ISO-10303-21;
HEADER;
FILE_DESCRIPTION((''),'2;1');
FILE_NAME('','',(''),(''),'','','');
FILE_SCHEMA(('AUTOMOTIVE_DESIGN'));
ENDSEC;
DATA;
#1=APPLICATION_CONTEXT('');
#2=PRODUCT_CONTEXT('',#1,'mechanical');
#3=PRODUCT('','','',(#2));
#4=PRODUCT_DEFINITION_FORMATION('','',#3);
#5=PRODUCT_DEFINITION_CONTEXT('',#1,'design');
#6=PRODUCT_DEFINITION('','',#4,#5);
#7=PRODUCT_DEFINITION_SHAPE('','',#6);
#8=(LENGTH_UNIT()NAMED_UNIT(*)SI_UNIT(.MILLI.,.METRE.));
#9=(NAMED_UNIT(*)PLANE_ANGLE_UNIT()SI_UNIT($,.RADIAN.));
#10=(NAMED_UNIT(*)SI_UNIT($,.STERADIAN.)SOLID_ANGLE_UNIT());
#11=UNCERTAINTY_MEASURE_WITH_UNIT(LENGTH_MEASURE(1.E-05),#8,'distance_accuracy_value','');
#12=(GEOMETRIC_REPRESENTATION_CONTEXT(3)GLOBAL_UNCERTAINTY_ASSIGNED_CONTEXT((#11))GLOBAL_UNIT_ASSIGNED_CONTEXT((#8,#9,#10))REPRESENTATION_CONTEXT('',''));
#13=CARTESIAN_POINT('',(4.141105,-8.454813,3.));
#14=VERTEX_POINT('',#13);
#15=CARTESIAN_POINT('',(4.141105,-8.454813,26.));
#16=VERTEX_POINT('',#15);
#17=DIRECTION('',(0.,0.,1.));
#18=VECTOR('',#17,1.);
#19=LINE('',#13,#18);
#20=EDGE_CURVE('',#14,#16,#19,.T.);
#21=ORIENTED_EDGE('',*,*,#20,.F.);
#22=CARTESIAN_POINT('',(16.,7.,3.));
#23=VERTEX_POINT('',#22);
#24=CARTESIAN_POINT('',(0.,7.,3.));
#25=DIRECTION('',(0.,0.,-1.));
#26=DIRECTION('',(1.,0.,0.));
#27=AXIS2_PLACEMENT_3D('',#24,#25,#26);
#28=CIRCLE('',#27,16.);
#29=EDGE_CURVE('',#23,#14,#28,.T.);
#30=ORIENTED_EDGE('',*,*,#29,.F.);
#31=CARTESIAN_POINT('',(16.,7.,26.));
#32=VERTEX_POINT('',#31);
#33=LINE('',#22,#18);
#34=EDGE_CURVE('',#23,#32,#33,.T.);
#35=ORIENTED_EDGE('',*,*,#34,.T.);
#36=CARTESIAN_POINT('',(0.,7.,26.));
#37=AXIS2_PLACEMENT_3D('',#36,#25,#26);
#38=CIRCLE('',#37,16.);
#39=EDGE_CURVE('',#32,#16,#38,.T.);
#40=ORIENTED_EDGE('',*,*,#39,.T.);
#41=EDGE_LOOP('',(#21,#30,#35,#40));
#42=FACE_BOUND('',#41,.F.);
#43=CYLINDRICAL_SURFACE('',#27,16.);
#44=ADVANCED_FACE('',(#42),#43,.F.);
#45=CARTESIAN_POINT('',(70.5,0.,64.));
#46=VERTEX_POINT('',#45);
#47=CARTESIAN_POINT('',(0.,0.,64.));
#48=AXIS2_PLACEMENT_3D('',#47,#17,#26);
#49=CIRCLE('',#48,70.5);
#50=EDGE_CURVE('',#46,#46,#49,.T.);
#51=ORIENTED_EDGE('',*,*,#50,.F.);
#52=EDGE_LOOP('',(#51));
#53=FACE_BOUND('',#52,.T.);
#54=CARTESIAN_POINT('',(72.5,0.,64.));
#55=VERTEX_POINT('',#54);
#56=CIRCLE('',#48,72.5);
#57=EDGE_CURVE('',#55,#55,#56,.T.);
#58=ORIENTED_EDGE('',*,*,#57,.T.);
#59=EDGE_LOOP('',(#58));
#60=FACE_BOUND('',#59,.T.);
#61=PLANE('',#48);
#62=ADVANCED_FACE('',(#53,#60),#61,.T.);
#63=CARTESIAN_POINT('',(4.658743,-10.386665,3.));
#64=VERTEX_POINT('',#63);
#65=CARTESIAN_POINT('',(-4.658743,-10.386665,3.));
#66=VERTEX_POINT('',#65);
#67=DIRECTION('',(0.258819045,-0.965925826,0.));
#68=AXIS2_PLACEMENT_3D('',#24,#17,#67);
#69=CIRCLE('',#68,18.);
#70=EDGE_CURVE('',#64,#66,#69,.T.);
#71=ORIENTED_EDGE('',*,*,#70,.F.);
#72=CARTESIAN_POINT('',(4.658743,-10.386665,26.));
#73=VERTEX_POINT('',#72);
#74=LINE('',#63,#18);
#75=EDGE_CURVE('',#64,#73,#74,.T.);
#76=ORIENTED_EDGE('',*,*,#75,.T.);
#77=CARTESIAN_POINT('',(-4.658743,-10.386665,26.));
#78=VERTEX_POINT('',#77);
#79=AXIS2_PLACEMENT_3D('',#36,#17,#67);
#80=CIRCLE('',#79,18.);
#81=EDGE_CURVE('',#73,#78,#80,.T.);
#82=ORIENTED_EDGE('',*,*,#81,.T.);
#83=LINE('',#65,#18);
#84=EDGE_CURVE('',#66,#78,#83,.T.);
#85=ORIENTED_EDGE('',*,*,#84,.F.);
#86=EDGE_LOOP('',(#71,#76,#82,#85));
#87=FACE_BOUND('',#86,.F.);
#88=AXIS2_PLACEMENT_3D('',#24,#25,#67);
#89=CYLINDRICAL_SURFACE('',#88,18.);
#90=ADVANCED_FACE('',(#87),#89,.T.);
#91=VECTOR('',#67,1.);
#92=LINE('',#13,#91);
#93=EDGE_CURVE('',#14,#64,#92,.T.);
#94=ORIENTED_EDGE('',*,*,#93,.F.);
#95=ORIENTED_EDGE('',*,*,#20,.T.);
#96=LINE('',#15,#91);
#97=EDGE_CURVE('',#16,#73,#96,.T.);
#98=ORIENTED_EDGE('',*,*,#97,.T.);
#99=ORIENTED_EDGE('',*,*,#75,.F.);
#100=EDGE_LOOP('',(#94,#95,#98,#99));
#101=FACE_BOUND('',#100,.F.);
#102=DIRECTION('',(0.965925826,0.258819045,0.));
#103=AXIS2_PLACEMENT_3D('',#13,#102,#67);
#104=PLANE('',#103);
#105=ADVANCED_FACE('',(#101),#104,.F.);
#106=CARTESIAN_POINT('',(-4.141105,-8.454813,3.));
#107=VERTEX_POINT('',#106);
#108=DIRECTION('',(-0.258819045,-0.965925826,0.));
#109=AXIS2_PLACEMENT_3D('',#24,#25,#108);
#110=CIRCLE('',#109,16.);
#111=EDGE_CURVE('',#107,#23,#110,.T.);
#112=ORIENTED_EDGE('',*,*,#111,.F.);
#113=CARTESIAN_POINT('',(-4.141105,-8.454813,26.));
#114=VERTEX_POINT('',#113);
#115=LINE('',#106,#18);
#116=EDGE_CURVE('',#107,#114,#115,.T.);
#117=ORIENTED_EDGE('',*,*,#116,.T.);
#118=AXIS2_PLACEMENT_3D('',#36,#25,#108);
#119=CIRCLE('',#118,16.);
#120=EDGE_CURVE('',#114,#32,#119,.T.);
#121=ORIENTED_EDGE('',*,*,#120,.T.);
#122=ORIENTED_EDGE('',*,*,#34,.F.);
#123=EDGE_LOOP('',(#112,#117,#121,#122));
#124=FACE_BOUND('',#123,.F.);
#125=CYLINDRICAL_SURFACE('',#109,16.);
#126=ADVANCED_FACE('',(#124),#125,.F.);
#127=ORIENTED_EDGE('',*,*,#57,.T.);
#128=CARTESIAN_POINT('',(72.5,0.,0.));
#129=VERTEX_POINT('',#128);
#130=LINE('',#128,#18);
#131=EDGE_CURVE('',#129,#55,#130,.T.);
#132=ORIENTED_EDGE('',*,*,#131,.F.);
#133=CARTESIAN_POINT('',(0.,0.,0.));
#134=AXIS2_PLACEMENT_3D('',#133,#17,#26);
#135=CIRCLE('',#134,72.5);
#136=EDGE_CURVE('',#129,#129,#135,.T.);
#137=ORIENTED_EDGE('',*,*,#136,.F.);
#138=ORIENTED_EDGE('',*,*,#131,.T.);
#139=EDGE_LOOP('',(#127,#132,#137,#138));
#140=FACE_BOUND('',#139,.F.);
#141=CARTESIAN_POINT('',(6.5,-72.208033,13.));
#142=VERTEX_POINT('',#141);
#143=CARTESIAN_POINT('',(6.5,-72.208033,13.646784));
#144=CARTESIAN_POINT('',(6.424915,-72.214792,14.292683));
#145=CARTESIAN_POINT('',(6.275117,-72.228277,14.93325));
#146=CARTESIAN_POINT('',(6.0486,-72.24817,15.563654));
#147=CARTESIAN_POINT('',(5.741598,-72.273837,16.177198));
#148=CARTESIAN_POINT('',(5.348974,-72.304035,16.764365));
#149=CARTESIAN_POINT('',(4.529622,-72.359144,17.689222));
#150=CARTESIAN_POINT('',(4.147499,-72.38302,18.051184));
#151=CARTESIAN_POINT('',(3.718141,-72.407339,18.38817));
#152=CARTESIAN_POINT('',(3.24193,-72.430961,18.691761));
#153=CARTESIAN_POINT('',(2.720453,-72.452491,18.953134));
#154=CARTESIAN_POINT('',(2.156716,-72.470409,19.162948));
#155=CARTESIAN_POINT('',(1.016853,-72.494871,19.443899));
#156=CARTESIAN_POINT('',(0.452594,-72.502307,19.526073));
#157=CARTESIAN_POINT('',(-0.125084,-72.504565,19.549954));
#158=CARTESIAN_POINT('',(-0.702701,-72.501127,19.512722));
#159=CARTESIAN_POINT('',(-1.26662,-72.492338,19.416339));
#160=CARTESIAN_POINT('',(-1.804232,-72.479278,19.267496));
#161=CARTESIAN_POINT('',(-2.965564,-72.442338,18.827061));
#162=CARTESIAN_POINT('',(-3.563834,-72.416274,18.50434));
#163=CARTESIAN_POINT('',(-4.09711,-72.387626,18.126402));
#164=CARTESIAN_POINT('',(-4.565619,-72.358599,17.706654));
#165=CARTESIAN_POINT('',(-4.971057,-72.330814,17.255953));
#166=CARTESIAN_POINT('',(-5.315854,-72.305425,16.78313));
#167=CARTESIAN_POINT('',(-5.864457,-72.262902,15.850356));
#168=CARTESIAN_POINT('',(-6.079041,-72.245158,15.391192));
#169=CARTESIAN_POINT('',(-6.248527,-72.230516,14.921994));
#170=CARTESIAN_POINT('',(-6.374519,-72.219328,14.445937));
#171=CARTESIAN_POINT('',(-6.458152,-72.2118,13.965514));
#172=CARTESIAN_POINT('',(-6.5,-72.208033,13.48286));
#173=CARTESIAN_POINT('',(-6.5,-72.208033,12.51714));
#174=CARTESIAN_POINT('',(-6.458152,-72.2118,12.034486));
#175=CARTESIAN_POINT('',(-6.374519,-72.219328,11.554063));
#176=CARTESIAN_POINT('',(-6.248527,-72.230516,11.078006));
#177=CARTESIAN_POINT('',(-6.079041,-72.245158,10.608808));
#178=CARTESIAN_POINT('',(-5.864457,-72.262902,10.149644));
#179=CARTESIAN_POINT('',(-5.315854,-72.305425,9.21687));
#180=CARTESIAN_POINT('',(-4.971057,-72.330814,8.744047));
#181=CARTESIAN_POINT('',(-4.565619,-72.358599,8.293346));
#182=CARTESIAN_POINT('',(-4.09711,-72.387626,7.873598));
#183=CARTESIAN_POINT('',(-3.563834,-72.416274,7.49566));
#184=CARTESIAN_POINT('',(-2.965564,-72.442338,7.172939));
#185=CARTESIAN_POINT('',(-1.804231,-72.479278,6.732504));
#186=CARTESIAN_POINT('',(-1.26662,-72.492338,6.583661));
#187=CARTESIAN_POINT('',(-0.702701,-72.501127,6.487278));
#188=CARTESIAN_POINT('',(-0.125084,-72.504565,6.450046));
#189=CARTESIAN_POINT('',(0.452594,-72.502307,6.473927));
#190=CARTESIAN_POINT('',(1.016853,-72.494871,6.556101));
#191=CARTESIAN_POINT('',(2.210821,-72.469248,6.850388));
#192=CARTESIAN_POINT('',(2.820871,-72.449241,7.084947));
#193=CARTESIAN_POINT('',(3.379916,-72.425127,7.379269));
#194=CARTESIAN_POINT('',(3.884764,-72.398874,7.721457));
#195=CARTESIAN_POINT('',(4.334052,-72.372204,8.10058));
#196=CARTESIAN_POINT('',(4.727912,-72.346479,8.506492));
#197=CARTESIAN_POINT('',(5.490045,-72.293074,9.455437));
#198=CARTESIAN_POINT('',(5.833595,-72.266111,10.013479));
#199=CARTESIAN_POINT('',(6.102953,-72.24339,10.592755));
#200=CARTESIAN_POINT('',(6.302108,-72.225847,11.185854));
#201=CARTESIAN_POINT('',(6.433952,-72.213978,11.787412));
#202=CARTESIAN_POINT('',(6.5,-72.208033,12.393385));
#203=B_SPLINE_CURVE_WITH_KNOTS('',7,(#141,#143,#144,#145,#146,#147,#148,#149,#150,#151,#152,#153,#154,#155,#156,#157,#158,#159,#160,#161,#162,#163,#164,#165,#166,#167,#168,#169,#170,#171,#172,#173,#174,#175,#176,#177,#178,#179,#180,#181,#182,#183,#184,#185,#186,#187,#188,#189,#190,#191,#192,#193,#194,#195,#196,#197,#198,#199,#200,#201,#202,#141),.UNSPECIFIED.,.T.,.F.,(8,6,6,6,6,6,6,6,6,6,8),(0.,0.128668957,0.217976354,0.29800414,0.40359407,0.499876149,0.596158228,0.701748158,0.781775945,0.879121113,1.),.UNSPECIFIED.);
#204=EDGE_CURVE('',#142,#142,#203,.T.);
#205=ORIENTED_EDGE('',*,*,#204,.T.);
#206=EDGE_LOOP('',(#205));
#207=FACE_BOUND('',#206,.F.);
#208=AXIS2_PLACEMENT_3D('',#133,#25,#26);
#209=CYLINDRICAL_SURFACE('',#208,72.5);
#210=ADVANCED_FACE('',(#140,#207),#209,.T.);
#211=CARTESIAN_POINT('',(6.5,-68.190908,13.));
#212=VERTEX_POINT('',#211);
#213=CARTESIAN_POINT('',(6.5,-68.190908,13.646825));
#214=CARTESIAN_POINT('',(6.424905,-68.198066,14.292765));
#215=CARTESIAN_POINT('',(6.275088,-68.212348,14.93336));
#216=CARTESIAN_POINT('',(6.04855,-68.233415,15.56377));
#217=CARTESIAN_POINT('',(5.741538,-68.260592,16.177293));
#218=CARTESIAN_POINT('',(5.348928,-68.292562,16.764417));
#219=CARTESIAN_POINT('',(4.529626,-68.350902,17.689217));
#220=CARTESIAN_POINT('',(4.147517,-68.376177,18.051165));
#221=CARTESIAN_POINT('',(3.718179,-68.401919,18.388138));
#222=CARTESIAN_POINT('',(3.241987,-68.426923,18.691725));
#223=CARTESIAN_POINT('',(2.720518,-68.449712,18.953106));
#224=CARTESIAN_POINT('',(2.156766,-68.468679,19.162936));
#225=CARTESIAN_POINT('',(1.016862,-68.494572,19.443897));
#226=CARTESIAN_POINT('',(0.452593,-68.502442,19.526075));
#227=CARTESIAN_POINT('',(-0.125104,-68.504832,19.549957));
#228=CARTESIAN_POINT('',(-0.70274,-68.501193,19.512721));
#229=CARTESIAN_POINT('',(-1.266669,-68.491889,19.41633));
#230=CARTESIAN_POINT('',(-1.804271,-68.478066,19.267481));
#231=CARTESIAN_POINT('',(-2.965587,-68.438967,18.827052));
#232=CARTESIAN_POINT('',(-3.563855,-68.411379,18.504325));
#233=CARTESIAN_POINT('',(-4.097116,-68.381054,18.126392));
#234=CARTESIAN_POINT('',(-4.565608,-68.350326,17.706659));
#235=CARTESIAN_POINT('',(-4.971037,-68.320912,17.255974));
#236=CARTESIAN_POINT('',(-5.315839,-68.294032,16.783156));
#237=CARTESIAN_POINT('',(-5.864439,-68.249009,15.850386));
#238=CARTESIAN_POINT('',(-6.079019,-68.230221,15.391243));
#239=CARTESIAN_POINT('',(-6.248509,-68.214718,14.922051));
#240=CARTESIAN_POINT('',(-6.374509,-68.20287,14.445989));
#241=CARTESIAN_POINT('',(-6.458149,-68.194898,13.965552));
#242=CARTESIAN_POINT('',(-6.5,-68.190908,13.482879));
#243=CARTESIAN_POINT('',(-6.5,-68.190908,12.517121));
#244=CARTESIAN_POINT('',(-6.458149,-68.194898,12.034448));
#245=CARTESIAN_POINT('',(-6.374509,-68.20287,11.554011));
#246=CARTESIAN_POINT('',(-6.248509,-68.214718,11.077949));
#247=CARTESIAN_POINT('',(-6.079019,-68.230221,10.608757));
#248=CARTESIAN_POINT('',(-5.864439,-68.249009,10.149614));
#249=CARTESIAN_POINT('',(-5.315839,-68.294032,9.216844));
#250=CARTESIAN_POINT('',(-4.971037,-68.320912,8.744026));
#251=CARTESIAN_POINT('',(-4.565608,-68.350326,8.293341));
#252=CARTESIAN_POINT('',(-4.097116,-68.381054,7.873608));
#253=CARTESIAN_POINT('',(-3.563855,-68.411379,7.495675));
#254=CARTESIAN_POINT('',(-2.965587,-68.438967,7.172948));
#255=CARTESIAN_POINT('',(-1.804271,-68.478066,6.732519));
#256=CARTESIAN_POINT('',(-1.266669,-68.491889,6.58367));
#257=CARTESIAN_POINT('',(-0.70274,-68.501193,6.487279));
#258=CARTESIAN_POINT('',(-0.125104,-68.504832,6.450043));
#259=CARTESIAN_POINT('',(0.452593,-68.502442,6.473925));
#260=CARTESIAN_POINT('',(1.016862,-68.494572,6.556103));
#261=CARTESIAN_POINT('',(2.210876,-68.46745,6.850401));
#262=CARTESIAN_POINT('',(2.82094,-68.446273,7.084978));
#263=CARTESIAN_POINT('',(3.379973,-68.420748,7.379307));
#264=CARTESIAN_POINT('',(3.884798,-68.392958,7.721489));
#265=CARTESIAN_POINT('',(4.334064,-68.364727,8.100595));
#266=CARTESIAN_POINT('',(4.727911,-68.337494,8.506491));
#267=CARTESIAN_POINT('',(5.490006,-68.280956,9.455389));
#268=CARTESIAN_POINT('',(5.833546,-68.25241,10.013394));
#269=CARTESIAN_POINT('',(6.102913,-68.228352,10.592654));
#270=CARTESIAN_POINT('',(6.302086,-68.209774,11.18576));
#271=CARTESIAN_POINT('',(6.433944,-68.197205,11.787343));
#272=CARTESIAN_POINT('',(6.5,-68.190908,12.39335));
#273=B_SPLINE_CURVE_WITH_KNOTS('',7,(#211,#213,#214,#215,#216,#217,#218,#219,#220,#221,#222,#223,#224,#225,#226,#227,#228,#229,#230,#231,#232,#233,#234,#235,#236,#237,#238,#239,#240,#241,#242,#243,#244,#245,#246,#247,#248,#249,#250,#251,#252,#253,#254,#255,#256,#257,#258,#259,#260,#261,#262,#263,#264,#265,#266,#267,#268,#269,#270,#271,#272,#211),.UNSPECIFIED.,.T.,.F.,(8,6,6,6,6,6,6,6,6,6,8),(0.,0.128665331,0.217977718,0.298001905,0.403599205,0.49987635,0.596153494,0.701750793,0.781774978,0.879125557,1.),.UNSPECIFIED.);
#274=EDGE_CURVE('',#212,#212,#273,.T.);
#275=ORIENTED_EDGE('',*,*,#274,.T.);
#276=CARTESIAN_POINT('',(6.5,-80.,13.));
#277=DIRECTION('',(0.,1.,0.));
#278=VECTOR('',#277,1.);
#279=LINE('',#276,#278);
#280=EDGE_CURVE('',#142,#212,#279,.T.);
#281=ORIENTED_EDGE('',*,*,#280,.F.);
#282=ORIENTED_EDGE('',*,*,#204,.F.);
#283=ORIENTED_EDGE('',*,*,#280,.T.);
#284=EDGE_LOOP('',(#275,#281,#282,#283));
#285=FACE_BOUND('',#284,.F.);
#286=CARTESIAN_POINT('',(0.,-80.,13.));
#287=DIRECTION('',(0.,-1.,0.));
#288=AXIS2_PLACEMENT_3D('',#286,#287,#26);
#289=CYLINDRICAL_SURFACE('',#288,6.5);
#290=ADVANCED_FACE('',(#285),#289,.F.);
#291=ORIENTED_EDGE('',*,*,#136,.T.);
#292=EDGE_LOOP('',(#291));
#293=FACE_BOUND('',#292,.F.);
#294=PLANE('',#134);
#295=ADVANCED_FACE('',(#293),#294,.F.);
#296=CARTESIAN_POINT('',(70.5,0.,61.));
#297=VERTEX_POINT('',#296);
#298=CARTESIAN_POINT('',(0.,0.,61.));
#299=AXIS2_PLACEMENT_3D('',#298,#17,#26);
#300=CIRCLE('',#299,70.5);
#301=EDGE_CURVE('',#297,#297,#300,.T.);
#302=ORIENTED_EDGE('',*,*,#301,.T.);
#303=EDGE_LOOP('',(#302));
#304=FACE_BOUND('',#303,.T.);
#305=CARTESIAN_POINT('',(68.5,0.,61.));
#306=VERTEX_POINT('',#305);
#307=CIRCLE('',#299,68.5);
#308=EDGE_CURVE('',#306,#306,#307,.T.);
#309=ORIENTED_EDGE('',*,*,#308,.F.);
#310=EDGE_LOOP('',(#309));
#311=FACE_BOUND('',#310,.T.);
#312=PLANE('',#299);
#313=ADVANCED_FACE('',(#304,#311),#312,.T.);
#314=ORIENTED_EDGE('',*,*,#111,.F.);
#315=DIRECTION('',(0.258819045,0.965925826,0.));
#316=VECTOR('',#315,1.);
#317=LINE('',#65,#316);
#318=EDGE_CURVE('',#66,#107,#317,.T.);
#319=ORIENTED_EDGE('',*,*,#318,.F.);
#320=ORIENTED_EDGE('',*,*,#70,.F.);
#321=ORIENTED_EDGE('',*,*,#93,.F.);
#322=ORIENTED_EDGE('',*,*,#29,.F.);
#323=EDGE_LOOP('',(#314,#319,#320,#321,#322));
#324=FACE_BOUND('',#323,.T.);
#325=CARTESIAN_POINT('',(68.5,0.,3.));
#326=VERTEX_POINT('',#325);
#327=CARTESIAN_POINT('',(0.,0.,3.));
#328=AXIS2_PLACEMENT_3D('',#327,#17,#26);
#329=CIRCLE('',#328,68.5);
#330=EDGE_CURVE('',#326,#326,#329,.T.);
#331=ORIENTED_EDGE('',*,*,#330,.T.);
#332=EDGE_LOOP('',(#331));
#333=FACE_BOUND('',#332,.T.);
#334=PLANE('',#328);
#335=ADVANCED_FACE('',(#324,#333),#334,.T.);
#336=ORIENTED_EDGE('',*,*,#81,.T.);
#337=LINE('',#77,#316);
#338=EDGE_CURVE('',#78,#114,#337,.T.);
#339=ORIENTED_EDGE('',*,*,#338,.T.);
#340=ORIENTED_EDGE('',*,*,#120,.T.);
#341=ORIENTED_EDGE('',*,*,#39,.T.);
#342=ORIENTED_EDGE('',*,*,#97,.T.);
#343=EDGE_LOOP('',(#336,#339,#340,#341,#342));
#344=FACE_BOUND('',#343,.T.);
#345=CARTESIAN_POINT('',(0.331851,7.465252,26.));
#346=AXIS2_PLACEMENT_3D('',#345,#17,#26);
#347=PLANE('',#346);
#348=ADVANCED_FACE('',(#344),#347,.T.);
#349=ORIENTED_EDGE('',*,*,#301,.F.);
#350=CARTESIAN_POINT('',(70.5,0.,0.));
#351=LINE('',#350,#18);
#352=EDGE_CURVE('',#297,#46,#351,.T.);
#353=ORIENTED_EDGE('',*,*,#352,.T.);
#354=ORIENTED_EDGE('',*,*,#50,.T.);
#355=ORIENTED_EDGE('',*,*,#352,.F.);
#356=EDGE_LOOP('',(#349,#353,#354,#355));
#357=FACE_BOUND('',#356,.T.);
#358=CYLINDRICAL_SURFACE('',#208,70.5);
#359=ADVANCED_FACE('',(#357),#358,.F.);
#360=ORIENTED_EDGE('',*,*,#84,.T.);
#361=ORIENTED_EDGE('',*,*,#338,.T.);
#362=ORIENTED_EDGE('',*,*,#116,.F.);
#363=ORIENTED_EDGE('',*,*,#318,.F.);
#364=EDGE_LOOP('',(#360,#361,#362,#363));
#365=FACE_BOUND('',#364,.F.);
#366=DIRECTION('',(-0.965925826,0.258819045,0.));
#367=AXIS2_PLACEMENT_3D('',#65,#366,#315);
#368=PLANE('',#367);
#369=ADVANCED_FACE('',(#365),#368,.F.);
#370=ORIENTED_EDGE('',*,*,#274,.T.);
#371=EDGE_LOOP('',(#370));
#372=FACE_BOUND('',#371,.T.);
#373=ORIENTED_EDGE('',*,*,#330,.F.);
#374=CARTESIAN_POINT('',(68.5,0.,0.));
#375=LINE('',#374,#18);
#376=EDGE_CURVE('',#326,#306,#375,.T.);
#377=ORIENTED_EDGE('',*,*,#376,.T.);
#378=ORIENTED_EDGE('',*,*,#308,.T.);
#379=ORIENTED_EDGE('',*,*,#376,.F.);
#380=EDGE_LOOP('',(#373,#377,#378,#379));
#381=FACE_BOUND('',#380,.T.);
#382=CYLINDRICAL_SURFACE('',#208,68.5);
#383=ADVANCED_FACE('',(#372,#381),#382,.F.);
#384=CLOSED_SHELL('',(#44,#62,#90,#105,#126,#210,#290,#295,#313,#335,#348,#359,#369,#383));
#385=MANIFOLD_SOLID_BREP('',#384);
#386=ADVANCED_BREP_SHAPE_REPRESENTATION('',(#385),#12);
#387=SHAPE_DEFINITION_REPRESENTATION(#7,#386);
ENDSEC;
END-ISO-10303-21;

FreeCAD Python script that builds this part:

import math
import FreeCAD as App
import Part
import Sketcher
Q = App.Units.Quantity

doc = App.newDocument("Part")
body = doc.addObject("PartDesign::Body", "Body")

# Sketch on XY plane
sketch1 = doc.addObject("Sketcher::SketchObject", "Sketch")
body.addObject(sketch1)
sketch1.AttachmentSupport = (doc.XY_Plane, [""])
sketch1.MapMode = "FlatFace"
sketch1.addGeometry([
    Part.Circle(App.Vector(0, 0, 0), App.Vector(0, 0, 1), 72),
    Part.Circle(App.Vector(0, 0, 0), App.Vector(0, 0, 1), 70),
], False)
sketch1.addConstraint([
    Sketcher.Constraint("Coincident", 0, 3, -1, 1),
    Sketcher.Constraint("Coincident", 1, 3, -1, 1),
    Sketcher.Constraint("Diameter", 0, 145.0),
    Sketcher.Constraint("Diameter", 1, 141.0),
])
pad1 = doc.addObject("PartDesign::Pad", "Pad")
body.addObject(pad1)
pad1.Profile = sketch1
pad1.Length = 64

# Sketch on XY plane
sketch2 = doc.addObject("Sketcher::SketchObject", "Sketch001")
body.addObject(sketch2)
sketch2.AttachmentSupport = (doc.XY_Plane, [""])
sketch2.MapMode = "FlatFace"
sketch2.addGeometry([
    Part.Circle(App.Vector(0, 0, 0), App.Vector(0, 0, 1), 70),
    Part.Circle(App.Vector(0, 0, 0), App.Vector(0, 0, 1), 68),
], False)
sketch2.addConstraint([
    Sketcher.Constraint("Coincident", 0, 3, -1, 1),
    Sketcher.Constraint("Coincident", 1, 3, -1, 1),
    Sketcher.Constraint("Diameter", 0, 141.0),
    Sketcher.Constraint("Diameter", 1, 137.0),
])
pad2 = doc.addObject("PartDesign::Pad", "Pad001")
body.addObject(pad2)
pad2.Profile = sketch2
pad2.Length = 61

# Sketch on XY plane
sketch3 = doc.addObject("Sketcher::SketchObject", "Sketch002")
body.addObject(sketch3)
sketch3.AttachmentSupport = (doc.XY_Plane, [""])
sketch3.MapMode = "FlatFace"
sketch3.addGeometry(Part.Circle(App.Vector(0, 0, 0), App.Vector(0, 0, 1), 68), False)
sketch3.addConstraint([
    Sketcher.Constraint("Coincident", 0, 3, -1, 1),
    Sketcher.Constraint("Diameter", 0, 137.0),
])
pad3 = doc.addObject("PartDesign::Pad", "Pad002")
body.addObject(pad3)
pad3.Profile = sketch3
pad3.Length = 3

# Sketch on XY plane
sketch4 = doc.addObject("Sketcher::SketchObject", "Sketch003")
body.addObject(sketch4)
sketch4.AttachmentSupport = (doc.XY_Plane, [""])
sketch4.MapMode = "FlatFace"
sketch4.AttachmentOffset = App.Placement(App.Vector(0, 0, 3), App.Rotation())
sketch4.addGeometry([
    Part.ArcOfCircle(Part.Circle(App.Vector(0, 7, 0), App.Vector(0, 0, 1), 16), math.radians(0), math.radians(255)),  # 0
    Part.ArcOfCircle(Part.Circle(App.Vector(0, 7, 0), App.Vector(0, 0, 1), 16), math.radians(-75), math.radians(0)),  # 1
    Part.LineSegment(App.Vector(4.1, -8.5, 0), App.Vector(4.7, -10.4, 0)),  # 2
    Part.ArcOfCircle(Part.Circle(App.Vector(0, 7, 0), App.Vector(0, 0, 1), 18), math.radians(-75), math.radians(255)),  # 3
    Part.LineSegment(App.Vector(-4.7, -10.4, 0), App.Vector(-4.1, -8.5, 0)),  # 4
], False)
sketch4.addConstraint([
    Sketcher.Constraint("Tangent", 0, 1, 1, 2),
    Sketcher.Constraint("Coincident", 1, 1, 2, 1),
    Sketcher.Constraint("Coincident", 2, 2, 3, 1),
    Sketcher.Constraint("Coincident", 3, 2, 4, 1),
    Sketcher.Constraint("Coincident", 4, 2, 0, 2),
    Sketcher.Constraint("Coincident", 3, 3, 0, 3),
    Sketcher.Constraint("Equal", 0, 1),
    Sketcher.Constraint("Symmetric", 2, 2, 3, 2, -2),
    Sketcher.Constraint("Horizontal", 3, 3, 0, 1),
    Sketcher.Constraint("Horizontal", 1, 1, 4, 2),
    Sketcher.Constraint("Radius", 0, 16.0),
    Sketcher.Constraint("Radius", 3, 18.0),
    Sketcher.Constraint("Angle", 2, Q("-75 deg")),
    Sketcher.Constraint("DistanceY", -1, 1, 0, 3, 7.0),
    Sketcher.Constraint("DistanceX", 4, 2, 1, 1, 8.282209),
])
pad4 = doc.addObject("PartDesign::Pad", "Pad003")
body.addObject(pad4)
pad4.Profile = sketch4
pad4.Length = 23

# Sketch on XZ plane
sketch5 = doc.addObject("Sketcher::SketchObject", "Sketch004")
body.addObject(sketch5)
sketch5.AttachmentSupport = (doc.XZ_Plane, [""])
sketch5.MapMode = "FlatFace"
sketch5.AttachmentOffset = App.Placement(App.Vector(0, 0, 80), App.Rotation())
sketch5.addGeometry(Part.Circle(App.Vector(0, 13, 0), App.Vector(0, 0, 1), 6), False)
sketch5.addConstraint([
    Sketcher.Constraint("PointOnObject", 0, 3, -2),
    Sketcher.Constraint("Diameter", 0, 13.0),
    Sketcher.Constraint("DistanceY", -1, 1, 0, 3, 13.0),
])
pocket1 = doc.addObject("PartDesign::Pocket", "Pocket")
body.addObject(pocket1)
pocket1.Profile = sketch5
pocket1.Length = 25

doc.recompute()
